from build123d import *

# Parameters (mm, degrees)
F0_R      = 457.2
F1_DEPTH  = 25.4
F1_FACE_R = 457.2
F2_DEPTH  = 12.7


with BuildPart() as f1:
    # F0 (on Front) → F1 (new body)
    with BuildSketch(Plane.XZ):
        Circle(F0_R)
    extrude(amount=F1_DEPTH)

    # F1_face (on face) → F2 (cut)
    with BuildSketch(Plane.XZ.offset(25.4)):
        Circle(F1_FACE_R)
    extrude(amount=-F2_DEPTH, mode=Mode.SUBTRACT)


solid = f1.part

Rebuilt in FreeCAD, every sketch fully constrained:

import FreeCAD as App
import Part
import Sketcher

V = App.Vector
Q = App.Units.Quantity

doc = App.newDocument("Part")
params = doc.addObject("Spreadsheet::Sheet", "Params")
for row, (alias, value) in enumerate([
    ("sketch1_diameter", "36 in"),
    ("pad1_length", "1 in"),
    ("sketch2_diameter", "36 in"),
    ("pocket1_length", "0.5 in"),
], start=1):
    params.set(f"A{row}", alias)
    params.set(f"B{row}", "=" + value)
    params.setAlias(f"B{row}", alias)

body = doc.addObject("PartDesign::Body", "Body")

sketch1 = body.newObject("Sketcher::SketchObject", "Sketch")
sketch1.AttachmentSupport = (doc.getObject("XZ_Plane"), [""])
sketch1.MapMode = "FlatFace"
sketch1.addGeometry(Part.Circle(V(0, 0, 0), V(0, 0, 1), 457), False)
sketch1.addConstraint(Sketcher.Constraint("Coincident", 0, 3, -1, 1))
sketch1.addConstraint(Sketcher.Constraint("Diameter", 0, Q("36 in")))
sketch1.setExpression("Constraints[1]", "Params.sketch1_diameter")
pad1 = body.newObject("PartDesign::Pad", "Pad")
pad1.Profile = sketch1
pad1.setExpression("Length", "Params.pad1_length")

sketch2 = body.newObject("Sketcher::SketchObject", "Sketch001")
sketch2.AttachmentSupport = (doc.getObject("XZ_Plane"), [""])
sketch2.MapMode = "FlatFace"
sketch2.AttachmentOffset = App.Placement(V(0, 0, 1 * 25.4), App.Rotation())
sketch2.addGeometry(Part.Circle(V(0, 0, 0), V(0, 0, 1), 457), False)
sketch2.addConstraint(Sketcher.Constraint("Coincident", 0, 3, -1, 1))
sketch2.addConstraint(Sketcher.Constraint("Diameter", 0, Q("36 in")))
sketch2.setExpression("Constraints[1]", "Params.sketch2_diameter")
pocket1 = body.newObject("PartDesign::Pocket", "Pocket")
pocket1.Profile = sketch2
pocket1.setExpression("Length", "Params.pocket1_length")

doc.recompute()
